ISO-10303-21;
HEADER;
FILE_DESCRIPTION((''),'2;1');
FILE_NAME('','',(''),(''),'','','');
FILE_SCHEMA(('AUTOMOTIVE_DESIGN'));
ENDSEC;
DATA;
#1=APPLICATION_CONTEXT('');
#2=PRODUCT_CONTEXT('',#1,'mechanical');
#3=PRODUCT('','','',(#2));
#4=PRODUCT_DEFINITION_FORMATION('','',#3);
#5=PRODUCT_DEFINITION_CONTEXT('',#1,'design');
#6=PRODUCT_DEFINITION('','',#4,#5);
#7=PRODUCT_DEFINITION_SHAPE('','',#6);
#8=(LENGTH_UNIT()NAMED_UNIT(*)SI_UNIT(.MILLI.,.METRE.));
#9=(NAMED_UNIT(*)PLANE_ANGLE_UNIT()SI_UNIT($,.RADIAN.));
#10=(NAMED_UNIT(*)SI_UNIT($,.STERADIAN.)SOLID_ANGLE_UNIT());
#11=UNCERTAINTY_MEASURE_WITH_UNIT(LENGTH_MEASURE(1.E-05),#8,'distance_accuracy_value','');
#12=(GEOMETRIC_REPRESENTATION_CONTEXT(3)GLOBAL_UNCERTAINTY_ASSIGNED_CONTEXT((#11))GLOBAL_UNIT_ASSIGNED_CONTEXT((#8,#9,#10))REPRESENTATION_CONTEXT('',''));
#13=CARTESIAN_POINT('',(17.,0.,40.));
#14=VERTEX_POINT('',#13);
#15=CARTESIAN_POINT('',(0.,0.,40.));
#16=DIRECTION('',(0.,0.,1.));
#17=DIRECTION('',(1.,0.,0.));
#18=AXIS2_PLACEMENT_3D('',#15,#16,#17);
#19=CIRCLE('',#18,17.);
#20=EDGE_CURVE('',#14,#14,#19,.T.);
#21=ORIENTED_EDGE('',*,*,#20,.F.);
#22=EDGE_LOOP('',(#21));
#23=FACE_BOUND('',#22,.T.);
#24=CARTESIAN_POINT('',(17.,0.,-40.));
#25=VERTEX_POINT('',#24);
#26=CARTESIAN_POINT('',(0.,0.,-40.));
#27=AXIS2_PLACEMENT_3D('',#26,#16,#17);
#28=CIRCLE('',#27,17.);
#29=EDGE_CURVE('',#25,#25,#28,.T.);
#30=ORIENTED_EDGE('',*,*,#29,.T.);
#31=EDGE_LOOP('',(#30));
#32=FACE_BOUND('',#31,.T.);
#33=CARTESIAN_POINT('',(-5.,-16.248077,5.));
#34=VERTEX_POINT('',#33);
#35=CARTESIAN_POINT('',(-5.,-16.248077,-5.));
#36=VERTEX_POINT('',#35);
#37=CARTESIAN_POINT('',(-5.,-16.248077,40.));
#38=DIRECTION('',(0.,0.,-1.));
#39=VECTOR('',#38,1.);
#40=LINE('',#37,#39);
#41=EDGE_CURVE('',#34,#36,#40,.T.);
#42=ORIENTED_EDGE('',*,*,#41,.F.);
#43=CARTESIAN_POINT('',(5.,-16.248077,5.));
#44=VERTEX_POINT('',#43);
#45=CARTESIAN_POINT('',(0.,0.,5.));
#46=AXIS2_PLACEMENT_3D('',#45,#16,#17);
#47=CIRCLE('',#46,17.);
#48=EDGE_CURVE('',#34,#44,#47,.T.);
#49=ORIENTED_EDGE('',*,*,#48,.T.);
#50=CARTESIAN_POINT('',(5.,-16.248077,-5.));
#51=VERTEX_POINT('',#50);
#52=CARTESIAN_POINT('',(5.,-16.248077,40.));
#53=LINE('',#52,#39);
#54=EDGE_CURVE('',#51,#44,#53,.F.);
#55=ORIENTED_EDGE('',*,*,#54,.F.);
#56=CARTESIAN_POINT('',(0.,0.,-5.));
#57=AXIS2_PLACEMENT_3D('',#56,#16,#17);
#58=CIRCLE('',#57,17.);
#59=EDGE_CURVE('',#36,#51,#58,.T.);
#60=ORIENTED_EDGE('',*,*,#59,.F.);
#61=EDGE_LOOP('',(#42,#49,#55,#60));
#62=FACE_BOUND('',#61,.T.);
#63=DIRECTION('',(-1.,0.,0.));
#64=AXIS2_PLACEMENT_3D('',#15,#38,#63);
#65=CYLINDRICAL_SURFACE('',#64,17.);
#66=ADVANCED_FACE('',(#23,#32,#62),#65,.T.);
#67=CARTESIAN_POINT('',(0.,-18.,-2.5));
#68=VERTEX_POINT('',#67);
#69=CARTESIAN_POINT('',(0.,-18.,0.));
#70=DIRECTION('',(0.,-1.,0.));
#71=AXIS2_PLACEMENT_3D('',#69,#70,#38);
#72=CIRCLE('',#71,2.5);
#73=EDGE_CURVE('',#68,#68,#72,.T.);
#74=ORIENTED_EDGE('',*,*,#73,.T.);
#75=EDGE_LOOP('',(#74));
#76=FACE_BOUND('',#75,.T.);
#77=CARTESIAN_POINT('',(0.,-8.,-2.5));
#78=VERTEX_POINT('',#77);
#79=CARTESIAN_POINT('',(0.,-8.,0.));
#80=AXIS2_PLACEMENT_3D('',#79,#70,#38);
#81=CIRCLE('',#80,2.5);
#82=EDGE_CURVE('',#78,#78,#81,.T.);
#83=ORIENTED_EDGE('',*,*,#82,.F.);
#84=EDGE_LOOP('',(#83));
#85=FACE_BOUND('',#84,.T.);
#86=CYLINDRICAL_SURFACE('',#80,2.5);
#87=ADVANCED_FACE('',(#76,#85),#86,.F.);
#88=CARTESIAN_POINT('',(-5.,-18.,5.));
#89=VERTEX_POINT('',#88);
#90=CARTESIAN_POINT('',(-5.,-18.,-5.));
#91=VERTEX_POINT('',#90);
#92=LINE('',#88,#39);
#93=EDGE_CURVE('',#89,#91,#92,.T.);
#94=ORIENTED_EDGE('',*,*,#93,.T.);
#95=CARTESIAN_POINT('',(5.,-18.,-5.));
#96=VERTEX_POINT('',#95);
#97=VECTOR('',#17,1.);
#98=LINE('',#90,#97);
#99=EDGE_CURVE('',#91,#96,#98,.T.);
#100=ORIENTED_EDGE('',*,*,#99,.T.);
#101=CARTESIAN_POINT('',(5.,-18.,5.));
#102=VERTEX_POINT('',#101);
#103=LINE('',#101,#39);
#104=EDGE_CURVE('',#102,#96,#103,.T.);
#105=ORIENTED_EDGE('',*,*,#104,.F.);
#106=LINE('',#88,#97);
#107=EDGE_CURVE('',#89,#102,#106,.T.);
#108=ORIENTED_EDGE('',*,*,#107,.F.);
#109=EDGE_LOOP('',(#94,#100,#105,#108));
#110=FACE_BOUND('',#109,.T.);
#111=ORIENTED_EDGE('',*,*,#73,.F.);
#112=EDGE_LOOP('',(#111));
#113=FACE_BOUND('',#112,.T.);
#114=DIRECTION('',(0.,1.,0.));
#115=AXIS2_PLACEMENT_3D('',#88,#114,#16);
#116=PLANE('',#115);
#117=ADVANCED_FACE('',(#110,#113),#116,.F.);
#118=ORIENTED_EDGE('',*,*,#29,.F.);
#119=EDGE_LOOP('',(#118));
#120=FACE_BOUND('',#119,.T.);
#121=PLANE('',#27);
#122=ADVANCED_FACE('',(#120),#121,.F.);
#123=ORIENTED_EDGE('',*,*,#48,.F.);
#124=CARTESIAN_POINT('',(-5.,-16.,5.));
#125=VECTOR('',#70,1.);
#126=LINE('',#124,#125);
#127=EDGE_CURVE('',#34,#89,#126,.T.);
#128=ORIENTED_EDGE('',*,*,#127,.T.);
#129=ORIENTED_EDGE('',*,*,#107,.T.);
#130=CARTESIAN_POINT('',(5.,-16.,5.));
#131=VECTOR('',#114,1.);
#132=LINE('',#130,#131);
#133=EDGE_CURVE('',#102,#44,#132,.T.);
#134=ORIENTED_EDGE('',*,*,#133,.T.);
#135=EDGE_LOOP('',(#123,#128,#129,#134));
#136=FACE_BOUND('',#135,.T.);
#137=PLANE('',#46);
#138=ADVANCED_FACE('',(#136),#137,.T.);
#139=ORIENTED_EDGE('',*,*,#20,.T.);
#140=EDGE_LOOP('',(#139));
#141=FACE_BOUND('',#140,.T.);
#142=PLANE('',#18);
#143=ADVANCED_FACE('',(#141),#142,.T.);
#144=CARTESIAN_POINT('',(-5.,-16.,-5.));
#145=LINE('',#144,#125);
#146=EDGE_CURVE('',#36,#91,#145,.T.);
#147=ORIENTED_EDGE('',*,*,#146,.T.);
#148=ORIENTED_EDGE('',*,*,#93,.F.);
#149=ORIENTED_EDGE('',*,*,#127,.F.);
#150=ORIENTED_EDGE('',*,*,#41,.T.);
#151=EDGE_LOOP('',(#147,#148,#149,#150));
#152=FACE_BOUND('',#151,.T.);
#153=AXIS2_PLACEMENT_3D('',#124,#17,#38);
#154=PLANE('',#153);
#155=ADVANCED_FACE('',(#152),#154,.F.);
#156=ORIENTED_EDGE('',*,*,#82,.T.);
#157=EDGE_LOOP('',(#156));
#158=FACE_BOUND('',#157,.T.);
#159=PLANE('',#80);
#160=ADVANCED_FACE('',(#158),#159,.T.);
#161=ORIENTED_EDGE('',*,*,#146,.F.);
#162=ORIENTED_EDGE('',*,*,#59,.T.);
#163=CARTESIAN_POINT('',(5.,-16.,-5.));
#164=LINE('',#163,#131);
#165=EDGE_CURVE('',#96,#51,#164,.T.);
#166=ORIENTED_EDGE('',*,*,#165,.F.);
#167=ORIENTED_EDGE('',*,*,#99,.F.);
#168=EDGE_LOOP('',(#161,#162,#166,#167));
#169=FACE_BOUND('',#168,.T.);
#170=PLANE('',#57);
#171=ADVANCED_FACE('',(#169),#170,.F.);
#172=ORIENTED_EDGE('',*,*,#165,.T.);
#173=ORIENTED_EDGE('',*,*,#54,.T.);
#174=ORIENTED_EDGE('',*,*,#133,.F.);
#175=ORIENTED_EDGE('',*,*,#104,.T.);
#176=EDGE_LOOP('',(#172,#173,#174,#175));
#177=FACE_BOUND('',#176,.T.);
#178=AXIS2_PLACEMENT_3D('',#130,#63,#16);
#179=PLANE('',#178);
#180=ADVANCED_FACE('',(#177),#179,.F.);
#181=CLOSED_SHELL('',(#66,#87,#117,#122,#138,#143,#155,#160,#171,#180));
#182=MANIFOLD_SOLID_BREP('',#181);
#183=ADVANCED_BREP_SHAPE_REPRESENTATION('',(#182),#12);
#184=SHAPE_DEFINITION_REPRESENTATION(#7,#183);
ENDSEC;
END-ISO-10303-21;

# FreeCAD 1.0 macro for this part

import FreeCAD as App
import Part
import Sketcher


def add_polygon(sketch, points):
    """Adds a closed chain of lines whose ends are joined by coincident constraints."""
    first, n = sketch.GeometryCount, len(points)
    for a, b in zip(points, points[1:] + points[:1]):
        sketch.addGeometry(Part.LineSegment(App.Vector(*a, 0), App.Vector(*b, 0)), False)
    for i in range(n):
        sketch.addConstraint(Sketcher.Constraint("Coincident", first + i, 2, first + (i + 1) % n, 1))

doc = App.newDocument("Part")
body = doc.addObject("PartDesign::Body", "Body")

# Sketch on XY plane
sketch1 = doc.addObject("Sketcher::SketchObject", "Sketch")
body.addObject(sketch1)
sketch1.AttachmentSupport = (doc.XY_Plane, [""])
sketch1.MapMode = "FlatFace"
sketch1.addGeometry(Part.Circle(App.Vector(0, 0, 0), App.Vector(0, 0, 1), 17), False)
sketch1.addConstraint([
    Sketcher.Constraint("Coincident", 0, 3, -1, 1),
    Sketcher.Constraint("Diameter", 0, 34.0),
])
pad1 = doc.addObject("PartDesign::Pad", "Pad")
body.addObject(pad1)
pad1.Profile = sketch1
pad1.Length = 80
pad1.Midplane = True

# Sketch on XY plane
sketch2 = doc.addObject("Sketcher::SketchObject", "Sketch001")
body.addObject(sketch2)
sketch2.AttachmentSupport = (doc.XY_Plane, [""])
sketch2.MapMode = "FlatFace"
add_polygon(sketch2, [(-5, -16), (-5, -18), (5, -18), (5, -16)])  # lines 0-3
sketch2.addConstraint([
    Sketcher.Constraint("Vertical", 0),
    Sketcher.Constraint("Horizontal", 1),
    Sketcher.Constraint("Vertical", 2),
    Sketcher.Constraint("Horizontal", 3),
    Sketcher.Constraint("DistanceX", 1, 1, 1, 2, 10.0),
    Sketcher.Constraint("DistanceY", 0, 2, 0, 1, 2.0),
    Sketcher.Constraint("DistanceX", 0, 2, -1, 1, 5.0),
    Sketcher.Constraint("DistanceY", 0, 2, -1, 1, 18.0),
])
pad2 = doc.addObject("PartDesign::Pad", "Pad001")
body.addObject(pad2)
pad2.Profile = sketch2
pad2.Length = 10
pad2.Midplane = True

# Sketch on XZ plane
sketch3 = doc.addObject("Sketcher::SketchObject", "Sketch002")
body.addObject(sketch3)
sketch3.AttachmentSupport = (doc.XZ_Plane, [""])
sketch3.MapMode = "FlatFace"
sketch3.AttachmentOffset = App.Placement(App.Vector(0, 0, 18), App.Rotation())
sketch3.addGeometry(Part.Circle(App.Vector(0, 0, 0), App.Vector(0, 0, 1), 2.5), False)
sketch3.addConstraint([
    Sketcher.Constraint("Coincident", 0, 3, -1, 1),
    Sketcher.Constraint("Diameter", 0, 5.0),
])
pocket1 = doc.addObject("PartDesign::Pocket", "Pocket")
body.addObject(pocket1)
pocket1.Profile = sketch3
pocket1.Length = 10

doc.recompute()
